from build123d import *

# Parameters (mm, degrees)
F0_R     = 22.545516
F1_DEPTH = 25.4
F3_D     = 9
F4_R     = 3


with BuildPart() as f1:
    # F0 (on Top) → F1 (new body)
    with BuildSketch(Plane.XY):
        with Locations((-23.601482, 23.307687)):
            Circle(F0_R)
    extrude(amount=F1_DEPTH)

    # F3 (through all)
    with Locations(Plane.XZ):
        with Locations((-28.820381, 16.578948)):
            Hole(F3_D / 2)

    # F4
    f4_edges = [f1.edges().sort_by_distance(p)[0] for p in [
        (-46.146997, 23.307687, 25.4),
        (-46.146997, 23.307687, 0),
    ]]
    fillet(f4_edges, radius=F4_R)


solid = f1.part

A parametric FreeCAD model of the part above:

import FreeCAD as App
import Part
import Sketcher

V = App.Vector
Q = App.Units.Quantity


def edges_at(feature, points):
    """Names of the edges that pass closest to the given points."""
    edges = feature.Shape.Edges
    near = lambda p: min(range(len(edges)), key=lambda i: edges[i].distToShape(Part.Vertex(*p))[0])
    return sorted({f"Edge{near(p) + 1}" for p in points})

doc = App.newDocument("Part")
body = doc.addObject("PartDesign::Body", "Body")

# Sketch on XY plane
sketch1 = body.newObject("Sketcher::SketchObject", "Sketch")
sketch1.AttachmentSupport = (doc.getObject("XY_Plane"), [""])
sketch1.MapMode = "FlatFace"
sketch1.addGeometry(Part.Circle(V(-24, 23, 0), V(0, 0, 1), 23), False)
sketch1.addConstraint([
    Sketcher.Constraint("Diameter", 0, Q("45.091032 mm")),
    Sketcher.Constraint("DistanceX", 0, 3, -1, 1, Q("23.601482 mm")),
    Sketcher.Constraint("DistanceY", -1, 1, 0, 3, Q("23.307687 mm")),
])
pad1 = body.newObject("PartDesign::Pad", "Pad")
pad1.Profile = sketch1
pad1.Length = 25.4

# Sketch on XZ plane
sketch2 = body.newObject("Sketcher::SketchObject", "Sketch001")
sketch2.AttachmentSupport = (doc.getObject("XZ_Plane"), [""])
sketch2.MapMode = "FlatFace"
sketch2.addGeometry(Part.Circle(V(-28.8, 16.6, 0), V(0, 0, 1), 4.5), False)
sketch2.addConstraint([
    Sketcher.Constraint("Diameter", 0, Q("9 mm")),
    Sketcher.Constraint("DistanceX", 0, 3, -1, 1, Q("28.820381 mm")),
    Sketcher.Constraint("DistanceY", -1, 1, 0, 3, Q("16.578948 mm")),
])
doc.recompute()
hole = body.newObject("PartDesign::Hole", "Hole")
hole.Profile = sketch2
hole.ThreadType = "None"
hole.Diameter = 9
hole.DepthType = "ThroughAll"
doc.recompute()

fillet = body.newObject("PartDesign::Fillet", "Fillet")
fillet.Base = (hole, edges_at(hole, [(-46.147, 23.308, 25.4), (-46.147, 23.308, 0)]))
fillet.Radius = 3

doc.recompute()
